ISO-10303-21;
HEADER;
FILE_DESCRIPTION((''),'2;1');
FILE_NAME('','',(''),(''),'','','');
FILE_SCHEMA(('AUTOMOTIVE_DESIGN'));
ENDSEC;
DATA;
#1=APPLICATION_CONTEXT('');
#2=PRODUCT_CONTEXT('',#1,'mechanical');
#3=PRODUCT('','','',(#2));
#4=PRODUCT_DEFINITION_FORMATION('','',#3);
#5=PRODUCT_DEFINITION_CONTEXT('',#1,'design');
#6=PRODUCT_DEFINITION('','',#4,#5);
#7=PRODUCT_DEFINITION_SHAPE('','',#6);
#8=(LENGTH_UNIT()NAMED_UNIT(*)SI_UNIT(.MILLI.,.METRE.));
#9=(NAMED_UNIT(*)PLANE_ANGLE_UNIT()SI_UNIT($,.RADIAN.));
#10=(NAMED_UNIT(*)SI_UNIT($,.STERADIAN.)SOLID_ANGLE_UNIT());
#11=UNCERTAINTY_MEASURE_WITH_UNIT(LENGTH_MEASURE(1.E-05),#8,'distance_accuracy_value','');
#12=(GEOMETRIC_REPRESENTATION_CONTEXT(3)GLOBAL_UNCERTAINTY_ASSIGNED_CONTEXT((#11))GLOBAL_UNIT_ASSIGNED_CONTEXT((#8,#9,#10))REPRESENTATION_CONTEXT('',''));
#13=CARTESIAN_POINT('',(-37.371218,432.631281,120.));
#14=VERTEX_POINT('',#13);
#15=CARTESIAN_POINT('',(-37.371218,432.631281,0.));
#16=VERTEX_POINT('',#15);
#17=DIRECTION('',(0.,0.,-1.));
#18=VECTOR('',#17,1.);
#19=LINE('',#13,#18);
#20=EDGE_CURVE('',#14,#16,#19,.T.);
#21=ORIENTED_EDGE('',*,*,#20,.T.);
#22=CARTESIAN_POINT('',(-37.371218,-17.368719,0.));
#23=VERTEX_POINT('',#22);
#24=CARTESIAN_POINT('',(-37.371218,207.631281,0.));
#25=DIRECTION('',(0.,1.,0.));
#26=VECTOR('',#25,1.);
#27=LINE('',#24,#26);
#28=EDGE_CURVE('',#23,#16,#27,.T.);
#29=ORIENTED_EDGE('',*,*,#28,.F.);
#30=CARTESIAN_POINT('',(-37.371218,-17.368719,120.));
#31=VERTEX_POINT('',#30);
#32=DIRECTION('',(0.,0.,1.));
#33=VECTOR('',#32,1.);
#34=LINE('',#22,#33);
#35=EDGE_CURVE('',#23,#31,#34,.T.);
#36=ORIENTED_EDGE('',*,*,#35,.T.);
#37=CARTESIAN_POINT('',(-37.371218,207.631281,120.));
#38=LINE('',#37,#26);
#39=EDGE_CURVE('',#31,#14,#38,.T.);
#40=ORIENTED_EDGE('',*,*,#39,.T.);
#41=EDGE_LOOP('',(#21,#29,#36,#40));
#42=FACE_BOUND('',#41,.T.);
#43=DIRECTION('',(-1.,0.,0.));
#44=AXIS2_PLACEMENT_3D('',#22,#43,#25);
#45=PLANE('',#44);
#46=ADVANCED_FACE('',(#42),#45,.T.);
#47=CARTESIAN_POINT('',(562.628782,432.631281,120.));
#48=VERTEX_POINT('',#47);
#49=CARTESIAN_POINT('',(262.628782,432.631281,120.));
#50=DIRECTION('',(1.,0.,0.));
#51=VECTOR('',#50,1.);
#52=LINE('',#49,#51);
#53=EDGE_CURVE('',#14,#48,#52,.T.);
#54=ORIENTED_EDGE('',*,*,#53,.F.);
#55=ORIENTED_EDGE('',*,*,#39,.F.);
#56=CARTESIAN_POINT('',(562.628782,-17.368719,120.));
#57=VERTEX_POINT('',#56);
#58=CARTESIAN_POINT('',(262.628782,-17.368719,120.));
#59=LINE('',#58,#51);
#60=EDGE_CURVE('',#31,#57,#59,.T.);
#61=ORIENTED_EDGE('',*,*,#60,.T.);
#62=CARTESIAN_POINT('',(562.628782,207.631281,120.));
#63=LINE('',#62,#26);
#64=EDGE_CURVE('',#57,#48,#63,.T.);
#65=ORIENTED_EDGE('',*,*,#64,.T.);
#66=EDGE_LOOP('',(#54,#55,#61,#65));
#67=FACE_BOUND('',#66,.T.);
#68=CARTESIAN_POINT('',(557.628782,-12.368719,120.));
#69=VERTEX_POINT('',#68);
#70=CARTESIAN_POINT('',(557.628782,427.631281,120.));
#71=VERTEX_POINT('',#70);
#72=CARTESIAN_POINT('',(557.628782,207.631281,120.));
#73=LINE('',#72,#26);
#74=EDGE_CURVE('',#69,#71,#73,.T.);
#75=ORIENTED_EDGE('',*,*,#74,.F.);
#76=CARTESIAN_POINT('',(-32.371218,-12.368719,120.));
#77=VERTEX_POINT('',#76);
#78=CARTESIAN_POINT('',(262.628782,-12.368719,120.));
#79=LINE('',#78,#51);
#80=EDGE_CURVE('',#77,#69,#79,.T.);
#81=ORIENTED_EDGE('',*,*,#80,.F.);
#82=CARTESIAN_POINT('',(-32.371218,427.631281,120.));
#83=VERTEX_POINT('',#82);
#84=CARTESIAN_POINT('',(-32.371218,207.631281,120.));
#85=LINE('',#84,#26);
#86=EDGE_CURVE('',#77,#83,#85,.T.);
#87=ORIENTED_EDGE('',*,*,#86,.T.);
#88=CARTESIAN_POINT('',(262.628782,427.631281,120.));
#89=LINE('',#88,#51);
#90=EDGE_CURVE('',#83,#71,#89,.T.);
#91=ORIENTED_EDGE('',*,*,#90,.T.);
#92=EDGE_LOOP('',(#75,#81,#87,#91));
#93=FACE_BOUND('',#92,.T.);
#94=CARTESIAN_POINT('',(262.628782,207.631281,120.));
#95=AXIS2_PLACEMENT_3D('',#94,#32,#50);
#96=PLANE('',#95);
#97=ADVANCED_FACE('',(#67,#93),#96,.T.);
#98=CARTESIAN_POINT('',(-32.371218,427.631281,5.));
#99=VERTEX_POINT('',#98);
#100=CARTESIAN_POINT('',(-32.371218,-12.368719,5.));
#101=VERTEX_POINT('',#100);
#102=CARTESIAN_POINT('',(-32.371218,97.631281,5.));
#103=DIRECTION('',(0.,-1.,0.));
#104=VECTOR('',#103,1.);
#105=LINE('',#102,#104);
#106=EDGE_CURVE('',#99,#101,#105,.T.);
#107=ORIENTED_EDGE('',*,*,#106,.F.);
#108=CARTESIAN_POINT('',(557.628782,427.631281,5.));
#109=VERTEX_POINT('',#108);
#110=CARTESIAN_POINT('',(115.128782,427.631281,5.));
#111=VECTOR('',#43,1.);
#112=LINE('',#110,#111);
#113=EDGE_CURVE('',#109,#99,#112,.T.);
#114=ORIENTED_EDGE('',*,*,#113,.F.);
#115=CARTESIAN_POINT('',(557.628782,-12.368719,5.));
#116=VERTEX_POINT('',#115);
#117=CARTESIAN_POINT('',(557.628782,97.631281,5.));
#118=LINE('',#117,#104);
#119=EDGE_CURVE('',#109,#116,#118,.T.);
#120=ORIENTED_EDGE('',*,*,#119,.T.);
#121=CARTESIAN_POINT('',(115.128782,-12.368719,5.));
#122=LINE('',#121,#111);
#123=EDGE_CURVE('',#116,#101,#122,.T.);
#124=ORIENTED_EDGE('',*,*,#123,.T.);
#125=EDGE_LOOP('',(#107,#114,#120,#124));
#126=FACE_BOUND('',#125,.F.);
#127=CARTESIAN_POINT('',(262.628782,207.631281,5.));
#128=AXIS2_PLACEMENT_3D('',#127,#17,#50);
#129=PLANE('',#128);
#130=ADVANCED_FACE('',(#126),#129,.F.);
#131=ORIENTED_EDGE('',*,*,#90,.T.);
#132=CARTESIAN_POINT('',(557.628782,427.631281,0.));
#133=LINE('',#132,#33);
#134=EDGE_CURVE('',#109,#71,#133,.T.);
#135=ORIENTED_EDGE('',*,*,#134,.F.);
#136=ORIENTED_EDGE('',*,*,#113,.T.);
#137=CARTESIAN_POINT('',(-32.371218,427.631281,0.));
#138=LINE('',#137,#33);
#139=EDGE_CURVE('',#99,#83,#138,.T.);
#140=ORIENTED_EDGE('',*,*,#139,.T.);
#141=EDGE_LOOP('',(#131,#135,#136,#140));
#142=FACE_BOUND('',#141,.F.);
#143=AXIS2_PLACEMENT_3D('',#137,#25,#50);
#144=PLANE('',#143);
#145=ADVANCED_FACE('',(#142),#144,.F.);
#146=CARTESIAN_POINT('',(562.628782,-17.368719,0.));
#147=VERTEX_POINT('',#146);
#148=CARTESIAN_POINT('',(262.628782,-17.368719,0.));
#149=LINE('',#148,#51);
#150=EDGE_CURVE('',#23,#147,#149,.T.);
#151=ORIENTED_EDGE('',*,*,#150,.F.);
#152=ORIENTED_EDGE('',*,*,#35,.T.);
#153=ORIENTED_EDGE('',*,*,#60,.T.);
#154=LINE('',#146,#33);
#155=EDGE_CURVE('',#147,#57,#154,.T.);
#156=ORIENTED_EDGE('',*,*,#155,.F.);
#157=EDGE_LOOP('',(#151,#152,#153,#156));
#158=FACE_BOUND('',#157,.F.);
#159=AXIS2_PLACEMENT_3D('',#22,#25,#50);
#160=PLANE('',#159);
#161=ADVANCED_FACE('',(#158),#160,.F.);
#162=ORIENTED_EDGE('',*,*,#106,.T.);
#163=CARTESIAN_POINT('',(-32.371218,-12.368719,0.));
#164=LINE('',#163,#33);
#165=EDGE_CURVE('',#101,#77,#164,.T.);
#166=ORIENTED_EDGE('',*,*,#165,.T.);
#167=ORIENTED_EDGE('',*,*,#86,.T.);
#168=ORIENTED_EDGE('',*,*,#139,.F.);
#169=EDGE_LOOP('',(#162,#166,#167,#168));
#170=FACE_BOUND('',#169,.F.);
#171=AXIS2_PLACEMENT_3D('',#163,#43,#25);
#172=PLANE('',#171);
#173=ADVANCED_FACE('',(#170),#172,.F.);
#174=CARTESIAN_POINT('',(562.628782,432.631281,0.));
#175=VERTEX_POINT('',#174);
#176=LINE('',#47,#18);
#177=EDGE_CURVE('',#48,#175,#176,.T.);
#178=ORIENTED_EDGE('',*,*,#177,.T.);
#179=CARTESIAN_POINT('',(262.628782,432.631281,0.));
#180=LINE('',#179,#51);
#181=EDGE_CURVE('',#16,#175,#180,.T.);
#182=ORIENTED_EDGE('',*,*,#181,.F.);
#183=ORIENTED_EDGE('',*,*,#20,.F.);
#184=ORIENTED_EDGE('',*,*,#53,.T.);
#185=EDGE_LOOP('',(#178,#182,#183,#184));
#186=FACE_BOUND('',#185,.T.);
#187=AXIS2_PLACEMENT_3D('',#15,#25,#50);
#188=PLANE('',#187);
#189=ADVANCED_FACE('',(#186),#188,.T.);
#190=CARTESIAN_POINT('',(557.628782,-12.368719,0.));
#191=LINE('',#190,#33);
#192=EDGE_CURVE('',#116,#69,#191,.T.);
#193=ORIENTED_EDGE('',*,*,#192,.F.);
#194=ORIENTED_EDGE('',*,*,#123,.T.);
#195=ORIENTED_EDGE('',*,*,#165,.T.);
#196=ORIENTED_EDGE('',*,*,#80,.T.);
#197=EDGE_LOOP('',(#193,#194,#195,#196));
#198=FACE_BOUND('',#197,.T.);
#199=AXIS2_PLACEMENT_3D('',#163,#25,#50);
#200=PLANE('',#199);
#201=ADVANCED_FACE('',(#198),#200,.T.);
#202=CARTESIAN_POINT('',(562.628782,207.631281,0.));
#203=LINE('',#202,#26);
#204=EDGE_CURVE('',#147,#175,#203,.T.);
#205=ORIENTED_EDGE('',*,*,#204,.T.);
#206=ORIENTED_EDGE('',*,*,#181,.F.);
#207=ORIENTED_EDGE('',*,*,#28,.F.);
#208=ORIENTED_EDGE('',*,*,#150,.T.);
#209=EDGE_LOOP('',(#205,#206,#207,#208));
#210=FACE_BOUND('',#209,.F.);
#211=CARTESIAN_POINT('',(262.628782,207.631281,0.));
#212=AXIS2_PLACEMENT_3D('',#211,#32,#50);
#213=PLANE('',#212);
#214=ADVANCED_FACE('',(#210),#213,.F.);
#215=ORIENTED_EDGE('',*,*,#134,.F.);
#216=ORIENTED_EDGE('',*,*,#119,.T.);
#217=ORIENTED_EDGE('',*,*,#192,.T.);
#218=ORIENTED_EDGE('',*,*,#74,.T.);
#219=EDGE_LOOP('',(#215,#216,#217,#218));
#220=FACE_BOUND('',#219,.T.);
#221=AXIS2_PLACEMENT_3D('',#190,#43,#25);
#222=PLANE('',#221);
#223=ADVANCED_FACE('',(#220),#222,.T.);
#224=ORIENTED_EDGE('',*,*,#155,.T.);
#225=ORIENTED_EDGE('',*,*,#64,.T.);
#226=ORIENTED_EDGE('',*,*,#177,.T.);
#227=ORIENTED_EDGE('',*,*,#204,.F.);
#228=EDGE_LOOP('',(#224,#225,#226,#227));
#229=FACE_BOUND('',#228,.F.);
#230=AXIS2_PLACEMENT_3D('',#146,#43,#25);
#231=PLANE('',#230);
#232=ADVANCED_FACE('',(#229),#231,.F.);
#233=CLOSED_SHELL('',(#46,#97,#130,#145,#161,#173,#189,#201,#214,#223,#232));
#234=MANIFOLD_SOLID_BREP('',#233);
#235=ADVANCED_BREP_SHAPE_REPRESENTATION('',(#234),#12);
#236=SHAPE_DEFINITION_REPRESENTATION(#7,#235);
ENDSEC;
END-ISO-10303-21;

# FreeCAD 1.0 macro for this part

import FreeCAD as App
import Part
import Sketcher
from FreeCAD import Vector

doc = App.newDocument("Part")
body = doc.addObject("PartDesign::Body", "Body")

sketch1 = body.newObject("Sketcher::SketchObject", "Sketch")
sketch1.AttachmentSupport = (doc.getObject("XY_Plane"), [""])
sketch1.MapMode = "FlatFace"
sketch1.addGeometry([
    Part.LineSegment(Vector(-37.371218, 432.631281, 0), Vector(-37.371218, -17.368719, 0)),
    Part.LineSegment(Vector(-37.371218, -17.368719, 0), Vector(562.628782, -17.368719, 0)),
    Part.LineSegment(Vector(562.628782, -17.368719, 0), Vector(562.628782, 432.631281, 0)),
    Part.LineSegment(Vector(562.628782, 432.631281, 0), Vector(-37.371218, 432.631281, 0)),
    Part.LineSegment(Vector(557.628782, -12.368719, 0), Vector(-32.371218, -12.368719, 0)),
    Part.LineSegment(Vector(-32.371218, -12.368719, 0), Vector(-32.371218, 427.631281, 0)),
    Part.LineSegment(Vector(-32.371218, 427.631281, 0), Vector(557.628782, 427.631281, 0)),
    Part.LineSegment(Vector(557.628782, 427.631281, 0), Vector(557.628782, -12.368719, 0)),
], False)
sketch1.addConstraint([
    Sketcher.Constraint("Coincident", 0, 2, 1, 1),
    Sketcher.Constraint("Coincident", 1, 2, 2, 1),
    Sketcher.Constraint("Coincident", 2, 2, 3, 1),
    Sketcher.Constraint("Coincident", 3, 2, 0, 1),
    Sketcher.Constraint("Coincident", 4, 2, 5, 1),
    Sketcher.Constraint("Coincident", 5, 2, 6, 1),
    Sketcher.Constraint("Coincident", 6, 2, 7, 1),
    Sketcher.Constraint("Coincident", 7, 2, 4, 1),
    Sketcher.Constraint("Vertical", 0),
    Sketcher.Constraint("Horizontal", 1),
    Sketcher.Constraint("Vertical", 2),
    Sketcher.Constraint("Horizontal", 3),
    Sketcher.Constraint("Horizontal", 4),
    Sketcher.Constraint("Vertical", 5),
    Sketcher.Constraint("Horizontal", 6),
    Sketcher.Constraint("Vertical", 7),
    Sketcher.Constraint("DistanceX", 1, 1, 1, 2, 600.0),
    Sketcher.Constraint("DistanceX", 4, 2, 4, 1, 590.0),
    Sketcher.Constraint("DistanceY", 0, 2, 0, 1, 450.0),
    Sketcher.Constraint("DistanceY", 5, 1, 5, 2, 440.0),
    Sketcher.Constraint("DistanceX", 0, 2, 4, 2, 5.0),
    Sketcher.Constraint("DistanceY", 0, 2, 4, 2, 5.0),
    Sketcher.Constraint("DistanceY", 0, 2, -1, 1, 17.368719),
    Sketcher.Constraint("DistanceX", -1, 1, 1, 2, 562.628782),
])
pad1 = body.newObject("PartDesign::Pad", "Pad")
pad1.Profile = sketch1
pad1.Length = 120

sketch2 = body.newObject("Sketcher::SketchObject", "Sketch001")
sketch2.AttachmentSupport = (doc.getObject("XY_Plane"), [""])
sketch2.MapMode = "FlatFace"
sketch2.addGeometry([
    Part.LineSegment(Vector(-37.371218, -17.368719, 0), Vector(-37.371218, 432.631281, 0)),
    Part.LineSegment(Vector(-37.371218, 432.631281, 0), Vector(562.628782, 432.631281, 0)),
    Part.LineSegment(Vector(562.628782, 432.631281, 0), Vector(562.628782, -17.368719, 0)),
    Part.LineSegment(Vector(562.628782, -17.368719, 0), Vector(-37.371218, -17.368719, 0)),
], False)
sketch2.addConstraint([
    Sketcher.Constraint("Coincident", 0, 2, 1, 1),
    Sketcher.Constraint("Coincident", 1, 2, 2, 1),
    Sketcher.Constraint("Coincident", 2, 2, 3, 1),
    Sketcher.Constraint("Coincident", 3, 2, 0, 1),
    Sketcher.Constraint("Vertical", 0),
    Sketcher.Constraint("Horizontal", 1),
    Sketcher.Constraint("Vertical", 2),
    Sketcher.Constraint("Horizontal", 3),
    Sketcher.Constraint("DistanceX", 1, 1, 1, 2, 600.0),
    Sketcher.Constraint("DistanceY", 0, 1, 0, 2, 450.0),
    Sketcher.Constraint("DistanceY", -1, 1, 0, 2, 432.631281),
    Sketcher.Constraint("DistanceX", -1, 1, 1, 2, 562.628782),
])
pad2 = body.newObject("PartDesign::Pad", "Pad001")
pad2.Profile = sketch2
pad2.Length = 5

doc.recompute()
